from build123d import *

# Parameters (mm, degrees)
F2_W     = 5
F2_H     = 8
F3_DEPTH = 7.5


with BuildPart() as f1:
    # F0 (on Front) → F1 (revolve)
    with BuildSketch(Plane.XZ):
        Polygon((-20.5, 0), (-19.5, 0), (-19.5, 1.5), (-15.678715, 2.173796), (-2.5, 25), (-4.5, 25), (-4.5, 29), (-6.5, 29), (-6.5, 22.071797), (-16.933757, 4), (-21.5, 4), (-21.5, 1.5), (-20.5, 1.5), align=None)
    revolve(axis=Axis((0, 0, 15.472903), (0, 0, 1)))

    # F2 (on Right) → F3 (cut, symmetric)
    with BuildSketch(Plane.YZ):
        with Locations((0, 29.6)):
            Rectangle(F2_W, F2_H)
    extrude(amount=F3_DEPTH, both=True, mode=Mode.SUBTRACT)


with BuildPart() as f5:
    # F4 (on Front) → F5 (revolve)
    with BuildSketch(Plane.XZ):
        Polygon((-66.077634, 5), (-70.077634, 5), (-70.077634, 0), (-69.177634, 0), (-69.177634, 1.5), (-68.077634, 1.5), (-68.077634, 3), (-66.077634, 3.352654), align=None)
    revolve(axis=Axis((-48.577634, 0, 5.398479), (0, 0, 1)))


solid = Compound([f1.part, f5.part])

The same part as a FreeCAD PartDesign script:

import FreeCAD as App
import Part
import Sketcher
from FreeCAD import Vector
Q = App.Units.Quantity


def add_polygon(sketch, points):
    """Adds a closed chain of lines whose ends are joined by coincident constraints."""
    first, n = sketch.GeometryCount, len(points)
    for a, b in zip(points, points[1:] + points[:1]):
        sketch.addGeometry(Part.LineSegment(App.Vector(*a, 0), App.Vector(*b, 0)), False)
    for i in range(n):
        sketch.addConstraint(Sketcher.Constraint("Coincident", first + i, 2, first + (i + 1) % n, 1))

doc = App.newDocument("Part")
body = doc.addObject("PartDesign::Body", "Body")

sketch1 = body.newObject("Sketcher::SketchObject", "Sketch")
sketch1.AttachmentSupport = (doc.getObject("XZ_Plane"), [""])
sketch1.MapMode = "FlatFace"
add_polygon(sketch1, [(-20.5, 0), (-19.5, 0), (-19.5, 1.5), (-15.7, 2.2), (-2.5, 25), (-4.5, 25), (-4.5, 29), (-6.5, 29), (-6.5, 22.1), (-16.9, 4), (-21.5, 4), (-21.5, 1.5), (-20.5, 1.5)])
sketch1.addConstraint([
    Sketcher.Constraint("Horizontal", 0),
    Sketcher.Constraint("Vertical", 1),
    Sketcher.Constraint("Horizontal", 4),
    Sketcher.Constraint("Vertical", 5),
    Sketcher.Constraint("Horizontal", 6),
    Sketcher.Constraint("Vertical", 7),
    Sketcher.Constraint("Horizontal", 9),
    Sketcher.Constraint("Vertical", 10),
    Sketcher.Constraint("Horizontal", 11),
    Sketcher.Constraint("Vertical", 12),
    Sketcher.Constraint("PointOnObject", 0, 2, -1),
    Sketcher.Constraint("Parallel", 3, 8),
    Sketcher.Constraint("Horizontal", 1, 2, 10, 2),
    Sketcher.Constraint("Equal", 4, 6),
    Sketcher.Constraint("Equal", 0, 11),
    Sketcher.Constraint("DistanceX", 0, 1, 0, 2, Q("1 mm")),
    Sketcher.Constraint("DistanceX", 4, 2, 4, 1, Q("2 mm")),
    Sketcher.Constraint("DistanceY", 5, 1, 5, 2, Q("4 mm")),
    Sketcher.Constraint("Angle", 2, Q("10.000005 deg")),
    Sketcher.Constraint("Angle", 3, Q("60 deg")),
    Sketcher.Constraint("DistanceY", 1, 1, 1, 2, Q("1.5 mm")),
    Sketcher.Constraint("DistanceY", 10, 2, 10, 1, Q("2.5 mm")),
    Sketcher.Constraint("DistanceY", -1, 1, 3, 2, Q("25 mm")),
    Sketcher.Constraint("DistanceX", 1, 2, 3, 2, Q("17 mm")),
    Sketcher.Constraint("DistanceX", 0, 2, -1, 1, Q("19.5 mm")),
    Sketcher.Constraint("DistanceY", 2, 2, 7, 2, Q("19.898001 mm")),
])
revolution = body.newObject("PartDesign::Revolution", "Revolution")
revolution.Profile = sketch1
revolution.ReferenceAxis = (sketch1, ["V_Axis"])
revolution.Angle = 360

sketch2 = body.newObject("Sketcher::SketchObject", "Sketch001")
sketch2.AttachmentSupport = (doc.getObject("YZ_Plane"), [""])
sketch2.MapMode = "FlatFace"
add_polygon(sketch2, [(-2, 34), (-2, 26), (2, 26), (2, 34)])
sketch2.addConstraint([
    Sketcher.Constraint("Vertical", 0),
    Sketcher.Constraint("Horizontal", 1),
    Sketcher.Constraint("Vertical", 2),
    Sketcher.Constraint("Horizontal", 3),
    Sketcher.Constraint("DistanceX", 1, 1, 1, 2, Q("5 mm")),
    Sketcher.Constraint("DistanceY", 0, 2, 0, 1, Q("8 mm")),
    Sketcher.Constraint("DistanceX", 0, 2, -1, 1, Q("2.5 mm")),
    Sketcher.Constraint("DistanceY", -1, 1, 0, 2, Q("25.6 mm")),
])
pocket1 = body.newObject("PartDesign::Pocket", "Pocket")
pocket1.Profile = sketch2
pocket1.Length = 15
pocket1.Midplane = True
body2 = doc.addObject("PartDesign::Body", "Body001")

sketch3 = body2.newObject("Sketcher::SketchObject", "Sketch002")
sketch3.AttachmentSupport = (doc.getObject("XZ_Plane001"), [""])
sketch3.MapMode = "FlatFace"
add_polygon(sketch3, [(-66.1, 5), (-70.1, 5), (-70.1, 0), (-69.2, 0), (-69.2, 1.5), (-68.1, 1.5), (-68.1, 3), (-66.1, 3.4)])
sketch3.addGeometry(Part.LineSegment(Vector(-48.6, 0, 0), Vector(-48.6, 5, 0)), True)
sketch3.addConstraint([
    Sketcher.Constraint("Horizontal", 0),
    Sketcher.Constraint("Vertical", 1),
    Sketcher.Constraint("Horizontal", 2),
    Sketcher.Constraint("Vertical", 3),
    Sketcher.Constraint("Horizontal", 4),
    Sketcher.Constraint("Vertical", 5),
    Sketcher.Constraint("Vertical", 7),
    Sketcher.Constraint("Vertical", 8),
    Sketcher.Constraint("PointOnObject", 1, 2, -1),
    Sketcher.Constraint("PointOnObject", 8, 1, -1),
    Sketcher.Constraint("Horizontal", 7, 2, 8, 2),
    Sketcher.Constraint("Equal", 3, 5),
    Sketcher.Constraint("DistanceX", 0, 2, 0, 1, Q("4 mm")),
    Sketcher.Constraint("DistanceY", 1, 2, 1, 1, Q("5 mm")),
    Sketcher.Constraint("Angle", 6, Q("10.000001 deg")),
    Sketcher.Constraint("DistanceX", 2, 1, 2, 2, Q("0.9 mm")),
    Sketcher.Constraint("DistanceX", 4, 1, 4, 2, Q("1.1 mm")),
    Sketcher.Constraint("DistanceY", 3, 1, 3, 2, Q("1.5 mm")),
    Sketcher.Constraint("DistanceX", 6, 2, 8, 1, Q("17.5 mm")),
    Sketcher.Constraint("DistanceX", 0, 2, -1, 1, Q("70.077634 mm")),
])
revolution2 = body2.newObject("PartDesign::Revolution", "Revolution001")
revolution2.Profile = sketch3
revolution2.ReferenceAxis = (sketch3, ["Axis0"])
revolution2.Angle = 360

doc.recompute()
